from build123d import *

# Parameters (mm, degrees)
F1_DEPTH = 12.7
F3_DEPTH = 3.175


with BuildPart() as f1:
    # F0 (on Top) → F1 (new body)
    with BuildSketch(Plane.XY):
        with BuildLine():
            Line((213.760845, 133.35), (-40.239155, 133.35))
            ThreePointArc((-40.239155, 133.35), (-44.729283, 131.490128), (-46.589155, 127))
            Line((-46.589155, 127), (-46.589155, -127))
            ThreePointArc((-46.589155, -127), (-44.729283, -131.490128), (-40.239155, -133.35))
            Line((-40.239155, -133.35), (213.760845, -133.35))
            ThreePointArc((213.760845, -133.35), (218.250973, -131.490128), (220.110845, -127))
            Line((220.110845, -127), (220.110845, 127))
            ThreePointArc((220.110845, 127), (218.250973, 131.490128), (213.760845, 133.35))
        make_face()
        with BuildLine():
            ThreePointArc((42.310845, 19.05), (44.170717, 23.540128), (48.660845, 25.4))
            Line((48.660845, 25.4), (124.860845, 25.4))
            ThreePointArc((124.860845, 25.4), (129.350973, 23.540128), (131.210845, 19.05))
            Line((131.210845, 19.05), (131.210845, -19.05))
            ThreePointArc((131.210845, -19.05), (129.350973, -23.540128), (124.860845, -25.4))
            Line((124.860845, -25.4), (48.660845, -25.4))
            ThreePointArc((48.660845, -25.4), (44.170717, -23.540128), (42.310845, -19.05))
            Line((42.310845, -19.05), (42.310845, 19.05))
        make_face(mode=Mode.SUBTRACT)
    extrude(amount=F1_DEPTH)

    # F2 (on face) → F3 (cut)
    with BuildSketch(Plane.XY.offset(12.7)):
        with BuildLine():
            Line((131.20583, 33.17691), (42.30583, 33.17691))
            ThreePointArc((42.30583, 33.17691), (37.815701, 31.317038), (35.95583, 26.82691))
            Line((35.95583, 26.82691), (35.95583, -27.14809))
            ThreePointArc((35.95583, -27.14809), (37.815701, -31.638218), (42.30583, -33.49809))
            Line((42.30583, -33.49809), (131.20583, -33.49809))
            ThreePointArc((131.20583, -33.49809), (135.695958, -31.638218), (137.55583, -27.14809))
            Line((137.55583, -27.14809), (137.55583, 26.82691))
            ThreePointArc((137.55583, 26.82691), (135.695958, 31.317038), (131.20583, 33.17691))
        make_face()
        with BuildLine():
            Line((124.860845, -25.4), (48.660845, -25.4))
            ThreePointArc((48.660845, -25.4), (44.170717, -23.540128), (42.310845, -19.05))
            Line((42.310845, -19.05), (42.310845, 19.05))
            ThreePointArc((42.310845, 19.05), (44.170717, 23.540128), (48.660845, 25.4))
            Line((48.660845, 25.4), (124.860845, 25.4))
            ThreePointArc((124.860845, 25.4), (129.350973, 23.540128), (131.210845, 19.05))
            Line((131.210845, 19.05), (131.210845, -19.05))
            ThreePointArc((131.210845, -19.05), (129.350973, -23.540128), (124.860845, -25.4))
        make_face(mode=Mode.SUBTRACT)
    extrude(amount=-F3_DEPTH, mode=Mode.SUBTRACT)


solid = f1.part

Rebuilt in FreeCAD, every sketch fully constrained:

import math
import FreeCAD as App
import Part
import Sketcher
from FreeCAD import Vector
Q = App.Units.Quantity

doc = App.newDocument("Part")
body = doc.addObject("PartDesign::Body", "Body")

# Sketch on XY plane
sketch1 = doc.addObject("Sketcher::SketchObject", "Sketch")
body.addObject(sketch1)
sketch1.AttachmentSupport = (doc.XY_Plane, [""])
sketch1.MapMode = "FlatFace"
sketch1.addGeometry(Part.LineSegment(Vector(213.760845, 133.35, 0), Vector(-40.239155, 133.35, 0)), False)
sketch1.addGeometry(Part.ArcOfCircle(Part.Circle(Vector(-40.239155, 127, 0), Vector(0, 0, 1), 6.35), math.radians(90.000002), math.radians(179.999998)), False)
sketch1.addGeometry(Part.LineSegment(Vector(-46.589155, 127, 0), Vector(-46.589155, -127, 0)), False)
sketch1.addGeometry(Part.ArcOfCircle(Part.Circle(Vector(-40.239155, -127, 0), Vector(0, 0, 1), 6.35), math.radians(-179.999998), math.radians(-90.000002)), False)
sketch1.addGeometry(Part.LineSegment(Vector(-40.239155, -133.35, 0), Vector(213.760845, -133.35, 0)), False)
sketch1.addGeometry(Part.ArcOfCircle(Part.Circle(Vector(213.760845, -127, 0), Vector(0, 0, 1), 6.35), math.radians(-89.999998), math.radians(-0.000002)), False)
sketch1.addGeometry(Part.LineSegment(Vector(220.110845, -127, 0), Vector(220.110845, 127, 0)), False)
sketch1.addGeometry(Part.ArcOfCircle(Part.Circle(Vector(213.760845, 127, 0), Vector(0, 0, 1), 6.35), math.radians(0.000002), math.radians(89.999998)), False)
sketch1.addGeometry(Part.LineSegment(Vector(42.310845, -19.05, 0), Vector(42.310845, 19.05, 0)), False)
sketch1.addGeometry(Part.ArcOfCircle(Part.Circle(Vector(48.660845, 19.05, 0), Vector(0, 0, 1), 6.35), math.radians(90.000002), math.radians(179.999998)), False)
sketch1.addGeometry(Part.LineSegment(Vector(48.660845, 25.4, 0), Vector(124.860845, 25.4, 0)), False)
sketch1.addGeometry(Part.ArcOfCircle(Part.Circle(Vector(124.860845, 19.05, 0), Vector(0, 0, 1), 6.35), math.radians(0.000002), math.radians(89.999998)), False)
sketch1.addGeometry(Part.LineSegment(Vector(131.210845, 19.05, 0), Vector(131.210845, -19.05, 0)), False)
sketch1.addGeometry(Part.ArcOfCircle(Part.Circle(Vector(124.860845, -19.05, 0), Vector(0, 0, 1), 6.35), math.radians(-89.999998), math.radians(-0.000002)), False)
sketch1.addGeometry(Part.LineSegment(Vector(124.860845, -25.4, 0), Vector(48.660845, -25.4, 0)), False)
sketch1.addGeometry(Part.ArcOfCircle(Part.Circle(Vector(48.660845, -19.05, 0), Vector(0, 0, 1), 6.35), math.radians(-179.999998), math.radians(-90.000002)), False)
sketch1.addConstraint(Sketcher.Constraint("Tangent", 0, 2, 1, 1))
sketch1.addConstraint(Sketcher.Constraint("Tangent", 1, 2, 2, 1))
sketch1.addConstraint(Sketcher.Constraint("Tangent", 2, 2, 3, 1))
sketch1.addConstraint(Sketcher.Constraint("Tangent", 3, 2, 4, 1))
sketch1.addConstraint(Sketcher.Constraint("Tangent", 4, 2, 5, 1))
sketch1.addConstraint(Sketcher.Constraint("Tangent", 5, 2, 6, 1))
sketch1.addConstraint(Sketcher.Constraint("Tangent", 6, 2, 7, 1))
sketch1.addConstraint(Sketcher.Constraint("Tangent", 7, 2, 0, 1))
sketch1.addConstraint(Sketcher.Constraint("Tangent", 8, 2, 9, 2))
sketch1.addConstraint(Sketcher.Constraint("Tangent", 9, 1, 10, 1))
sketch1.addConstraint(Sketcher.Constraint("Tangent", 10, 2, 11, 2))
sketch1.addConstraint(Sketcher.Constraint("Tangent", 11, 1, 12, 1))
sketch1.addConstraint(Sketcher.Constraint("Tangent", 12, 2, 13, 2))
sketch1.addConstraint(Sketcher.Constraint("Tangent", 13, 1, 14, 1))
sketch1.addConstraint(Sketcher.Constraint("Tangent", 14, 2, 15, 2))
sketch1.addConstraint(Sketcher.Constraint("Tangent", 15, 1, 8, 1))
sketch1.addConstraint(Sketcher.Constraint("Horizontal", 0))
sketch1.addConstraint(Sketcher.Constraint("Vertical", 2))
sketch1.addConstraint(Sketcher.Constraint("Horizontal", 4))
sketch1.addConstraint(Sketcher.Constraint("Vertical", 6))
sketch1.addConstraint(Sketcher.Constraint("Vertical", 8))
sketch1.addConstraint(Sketcher.Constraint("Horizontal", 10))
sketch1.addConstraint(Sketcher.Constraint("Vertical", 12))
sketch1.addConstraint(Sketcher.Constraint("Horizontal", 14))
sketch1.addConstraint(Sketcher.Constraint("Equal", 1, 3))
sketch1.addConstraint(Sketcher.Constraint("Equal", 3, 5))
sketch1.addConstraint(Sketcher.Constraint("Equal", 5, 7))
sketch1.addConstraint(Sketcher.Constraint("Equal", 7, 9))
sketch1.addConstraint(Sketcher.Constraint("Equal", 9, 11))
sketch1.addConstraint(Sketcher.Constraint("Equal", 11, 13))
sketch1.addConstraint(Sketcher.Constraint("Equal", 13, 15))
sketch1.addConstraint(Sketcher.Constraint("Equal", 4, 2))
sketch1.addConstraint(Sketcher.Constraint("DistanceX", 0, 2, 0, 1, Q("10 in")))
sketch1.addConstraint(Sketcher.Constraint("DistanceX", 10, 1, 10, 2, Q("3 in")))
sketch1.addConstraint(Sketcher.Constraint("Radius", 1, Q("0.25 in")))
sketch1.addConstraint(Sketcher.Constraint("DistanceY", 8, 1, 8, 2, Q("1.5 in")))
sketch1.addConstraint(Sketcher.Constraint("DistanceY", -1, 1, 1, 3, Q("5 in")))
sketch1.addConstraint(Sketcher.Constraint("DistanceY", -1, 1, 9, 1, Q("1 in")))
sketch1.addConstraint(Sketcher.Constraint("DistanceX", 1, 3, 9, 3, Q("3.5 in")))
sketch1.addConstraint(Sketcher.Constraint("DistanceX", 1, 3, -1, 1, 40.239155))
pad1 = doc.addObject("PartDesign::Pad", "Pad")
body.addObject(pad1)
pad1.Profile = sketch1
pad1.Length = Q("0.5 in")

# Sketch on XY plane
sketch2 = doc.addObject("Sketcher::SketchObject", "Sketch001")
body.addObject(sketch2)
sketch2.AttachmentSupport = (doc.XY_Plane, [""])
sketch2.MapMode = "FlatFace"
sketch2.AttachmentOffset = App.Placement(Vector(0, 0, 0.5 * 25.4), App.Rotation())
sketch2.addGeometry(Part.LineSegment(Vector(131.20583, 33.17691, 0), Vector(42.30583, 33.17691, 0)), False)
sketch2.addGeometry(Part.ArcOfCircle(Part.Circle(Vector(42.305828, 26.826912, 0), Vector(0, 0, 1), 6.349998), math.radians(89.999986), math.radians(180.000014)), False)
sketch2.addGeometry(Part.LineSegment(Vector(35.95583, 26.82691, 0), Vector(35.95583, -27.14809, 0)), False)
sketch2.addGeometry(Part.ArcOfCircle(Part.Circle(Vector(42.305828, -27.148091, 0), Vector(0, 0, 1), 6.349998), math.radians(179.999986), math.radians(270.000014)), False)
sketch2.addGeometry(Part.LineSegment(Vector(42.30583, -33.49809, 0), Vector(131.20583, -33.49809, 0)), False)
sketch2.addGeometry(Part.ArcOfCircle(Part.Circle(Vector(131.20583, -27.14809, 0), Vector(0, 0, 1), 6.35), math.radians(-89.999998), math.radians(-0.000002)), False)
sketch2.addGeometry(Part.LineSegment(Vector(137.55583, -27.14809, 0), Vector(137.55583, 26.82691, 0)), False)
sketch2.addGeometry(Part.ArcOfCircle(Part.Circle(Vector(131.20583, 26.82691, 0), Vector(0, 0, 1), 6.35), math.radians(0.000002), math.radians(89.999998)), False)
sketch2.addGeometry(Part.ArcOfCircle(Part.Circle(Vector(124.860845, -19.05, 0), Vector(0, 0, 1), 6.35), math.radians(-89.999998), math.radians(-0.000002)), False)
sketch2.addGeometry(Part.LineSegment(Vector(124.860845, -25.4, 0), Vector(48.660845, -25.4, 0)), False)
sketch2.addGeometry(Part.ArcOfCircle(Part.Circle(Vector(48.660845, -19.05, 0), Vector(0, 0, 1), 6.35), math.radians(-179.999998), math.radians(-90.000002)), False)
sketch2.addGeometry(Part.LineSegment(Vector(42.310845, -19.05, 0), Vector(42.310845, 19.05, 0)), False)
sketch2.addGeometry(Part.ArcOfCircle(Part.Circle(Vector(48.660845, 19.05, 0), Vector(0, 0, 1), 6.35), math.radians(90.000002), math.radians(179.999998)), False)
sketch2.addGeometry(Part.LineSegment(Vector(48.660845, 25.4, 0), Vector(124.860845, 25.4, 0)), False)
sketch2.addGeometry(Part.ArcOfCircle(Part.Circle(Vector(124.860845, 19.05, 0), Vector(0, 0, 1), 6.35), math.radians(0.000002), math.radians(89.999998)), False)
sketch2.addGeometry(Part.LineSegment(Vector(131.210845, 19.05, 0), Vector(131.210845, -19.05, 0)), False)
sketch2.addConstraint(Sketcher.Constraint("Tangent", 0, 2, 1, 1))
sketch2.addConstraint(Sketcher.Constraint("Tangent", 1, 2, 2, 1))
sketch2.addConstraint(Sketcher.Constraint("Tangent", 2, 2, 3, 1))
sketch2.addConstraint(Sketcher.Constraint("Tangent", 3, 2, 4, 1))
sketch2.addConstraint(Sketcher.Constraint("Tangent", 4, 2, 5, 1))
sketch2.addConstraint(Sketcher.Constraint("Tangent", 5, 2, 6, 1))
sketch2.addConstraint(Sketcher.Constraint("Tangent", 6, 2, 7, 1))
sketch2.addConstraint(Sketcher.Constraint("Tangent", 7, 2, 0, 1))
sketch2.addConstraint(Sketcher.Constraint("Tangent", 8, 1, 9, 1))
sketch2.addConstraint(Sketcher.Constraint("Tangent", 9, 2, 10, 2))
sketch2.addConstraint(Sketcher.Constraint("Tangent", 10, 1, 11, 1))
sketch2.addConstraint(Sketcher.Constraint("Tangent", 11, 2, 12, 2))
sketch2.addConstraint(Sketcher.Constraint("Tangent", 12, 1, 13, 1))
sketch2.addConstraint(Sketcher.Constraint("Tangent", 13, 2, 14, 2))
sketch2.addConstraint(Sketcher.Constraint("Tangent", 14, 1, 15, 1))
sketch2.addConstraint(Sketcher.Constraint("Tangent", 15, 2, 8, 2))
sketch2.addConstraint(Sketcher.Constraint("Horizontal", 0))
sketch2.addConstraint(Sketcher.Constraint("Vertical", 2))
sketch2.addConstraint(Sketcher.Constraint("Horizontal", 4))
sketch2.addConstraint(Sketcher.Constraint("Vertical", 6))
sketch2.addConstraint(Sketcher.Constraint("Horizontal", 9))
sketch2.addConstraint(Sketcher.Constraint("Vertical", 11))
sketch2.addConstraint(Sketcher.Constraint("Horizontal", 13))
sketch2.addConstraint(Sketcher.Constraint("Vertical", 15))
sketch2.addConstraint(Sketcher.Constraint("Equal", 1, 3))
sketch2.addConstraint(Sketcher.Constraint("Equal", 3, 5))
sketch2.addConstraint(Sketcher.Constraint("Equal", 5, 7))
sketch2.addConstraint(Sketcher.Constraint("Equal", 7, 8))
sketch2.addConstraint(Sketcher.Constraint("Equal", 8, 10))
sketch2.addConstraint(Sketcher.Constraint("Equal", 10, 12))
sketch2.addConstraint(Sketcher.Constraint("Equal", 12, 14))
sketch2.addConstraint(Sketcher.Constraint("DistanceX", 9, 2, 9, 1, Q("3 in")))
sketch2.addConstraint(Sketcher.Constraint("Radius", 1, Q("0.2499999 in")))
sketch2.addConstraint(Sketcher.Constraint("DistanceX", 0, 2, 0, 1, Q("3.5 in")))
sketch2.addConstraint(Sketcher.Constraint("DistanceY", 11, 1, 11, 2, Q("1.5 in")))
sketch2.addConstraint(Sketcher.Constraint("DistanceY", 8, 1, -1, 1, Q("1 in")))
sketch2.addConstraint(Sketcher.Constraint("DistanceY", 2, 2, 2, 1, Q("2.125 in")))
sketch2.addConstraint(Sketcher.Constraint("DistanceX", -1, 1, 1, 3, 42.305828))
sketch2.addConstraint(Sketcher.Constraint("DistanceY", -1, 1, 1, 3, 26.826912))
sketch2.addConstraint(Sketcher.Constraint("DistanceX", -1, 1, 8, 3, 124.860845))
pocket1 = doc.addObject("PartDesign::Pocket", "Pocket")
body.addObject(pocket1)
pocket1.Profile = sketch2
pocket1.Length = Q("0.125 in")

doc.recompute()
